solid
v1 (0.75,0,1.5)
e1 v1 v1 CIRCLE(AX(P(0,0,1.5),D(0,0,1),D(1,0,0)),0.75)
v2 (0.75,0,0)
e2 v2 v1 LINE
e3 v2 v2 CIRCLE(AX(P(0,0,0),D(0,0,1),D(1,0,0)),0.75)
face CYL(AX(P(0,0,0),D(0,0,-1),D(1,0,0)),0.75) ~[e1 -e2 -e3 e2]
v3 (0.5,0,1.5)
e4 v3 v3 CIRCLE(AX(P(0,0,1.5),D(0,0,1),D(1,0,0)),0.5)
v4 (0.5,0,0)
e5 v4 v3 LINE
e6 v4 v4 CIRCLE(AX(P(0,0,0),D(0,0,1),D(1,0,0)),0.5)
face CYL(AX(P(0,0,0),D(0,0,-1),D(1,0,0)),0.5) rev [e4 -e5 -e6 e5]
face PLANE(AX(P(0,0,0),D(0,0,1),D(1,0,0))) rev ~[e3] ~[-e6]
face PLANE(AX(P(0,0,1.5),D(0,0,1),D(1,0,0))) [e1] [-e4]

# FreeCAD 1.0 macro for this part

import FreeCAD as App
import Part
import Sketcher
from FreeCAD import Vector

doc = App.newDocument("Part")
params = doc.addObject("Spreadsheet::Sheet", "Params")
for row, (alias, value) in enumerate([
    ("sketch1_diameter", "1 mm"),
    ("sketch1_diameter2", "1.5 mm"),
    ("pad1_length", "1.5 mm"),
], start=1):
    params.set(f"A{row}", alias)
    params.set(f"B{row}", "=" + value)
    params.setAlias(f"B{row}", alias)

body = doc.addObject("PartDesign::Body", "Body")

sketch1 = doc.addObject("Sketcher::SketchObject", "Sketch")
body.addObject(sketch1)
sketch1.AttachmentSupport = (doc.XY_Plane, [""])
sketch1.MapMode = "FlatFace"
sketch1.addGeometry(Part.Circle(Vector(0, 0, 0), Vector(0, 0, 1), 0.8), False)
sketch1.addGeometry(Part.Circle(Vector(0, 0, 0), Vector(0, 0, 1), 0.5), False)
sketch1.addConstraint(Sketcher.Constraint("Coincident", 0, 3, -1, 1))
sketch1.addConstraint(Sketcher.Constraint("Coincident", 1, 3, -1, 1))
sketch1.addConstraint(Sketcher.Constraint("Diameter", 1, 1.0))
sketch1.addConstraint(Sketcher.Constraint("Diameter", 0, 1.5))
sketch1.setExpression("Constraints[2]", "Params.sketch1_diameter")
sketch1.setExpression("Constraints[3]", "Params.sketch1_diameter2")
pad1 = doc.addObject("PartDesign::Pad", "Pad")
body.addObject(pad1)
pad1.Profile = sketch1
pad1.setExpression("Length", "Params.pad1_length")

doc.recompute()
